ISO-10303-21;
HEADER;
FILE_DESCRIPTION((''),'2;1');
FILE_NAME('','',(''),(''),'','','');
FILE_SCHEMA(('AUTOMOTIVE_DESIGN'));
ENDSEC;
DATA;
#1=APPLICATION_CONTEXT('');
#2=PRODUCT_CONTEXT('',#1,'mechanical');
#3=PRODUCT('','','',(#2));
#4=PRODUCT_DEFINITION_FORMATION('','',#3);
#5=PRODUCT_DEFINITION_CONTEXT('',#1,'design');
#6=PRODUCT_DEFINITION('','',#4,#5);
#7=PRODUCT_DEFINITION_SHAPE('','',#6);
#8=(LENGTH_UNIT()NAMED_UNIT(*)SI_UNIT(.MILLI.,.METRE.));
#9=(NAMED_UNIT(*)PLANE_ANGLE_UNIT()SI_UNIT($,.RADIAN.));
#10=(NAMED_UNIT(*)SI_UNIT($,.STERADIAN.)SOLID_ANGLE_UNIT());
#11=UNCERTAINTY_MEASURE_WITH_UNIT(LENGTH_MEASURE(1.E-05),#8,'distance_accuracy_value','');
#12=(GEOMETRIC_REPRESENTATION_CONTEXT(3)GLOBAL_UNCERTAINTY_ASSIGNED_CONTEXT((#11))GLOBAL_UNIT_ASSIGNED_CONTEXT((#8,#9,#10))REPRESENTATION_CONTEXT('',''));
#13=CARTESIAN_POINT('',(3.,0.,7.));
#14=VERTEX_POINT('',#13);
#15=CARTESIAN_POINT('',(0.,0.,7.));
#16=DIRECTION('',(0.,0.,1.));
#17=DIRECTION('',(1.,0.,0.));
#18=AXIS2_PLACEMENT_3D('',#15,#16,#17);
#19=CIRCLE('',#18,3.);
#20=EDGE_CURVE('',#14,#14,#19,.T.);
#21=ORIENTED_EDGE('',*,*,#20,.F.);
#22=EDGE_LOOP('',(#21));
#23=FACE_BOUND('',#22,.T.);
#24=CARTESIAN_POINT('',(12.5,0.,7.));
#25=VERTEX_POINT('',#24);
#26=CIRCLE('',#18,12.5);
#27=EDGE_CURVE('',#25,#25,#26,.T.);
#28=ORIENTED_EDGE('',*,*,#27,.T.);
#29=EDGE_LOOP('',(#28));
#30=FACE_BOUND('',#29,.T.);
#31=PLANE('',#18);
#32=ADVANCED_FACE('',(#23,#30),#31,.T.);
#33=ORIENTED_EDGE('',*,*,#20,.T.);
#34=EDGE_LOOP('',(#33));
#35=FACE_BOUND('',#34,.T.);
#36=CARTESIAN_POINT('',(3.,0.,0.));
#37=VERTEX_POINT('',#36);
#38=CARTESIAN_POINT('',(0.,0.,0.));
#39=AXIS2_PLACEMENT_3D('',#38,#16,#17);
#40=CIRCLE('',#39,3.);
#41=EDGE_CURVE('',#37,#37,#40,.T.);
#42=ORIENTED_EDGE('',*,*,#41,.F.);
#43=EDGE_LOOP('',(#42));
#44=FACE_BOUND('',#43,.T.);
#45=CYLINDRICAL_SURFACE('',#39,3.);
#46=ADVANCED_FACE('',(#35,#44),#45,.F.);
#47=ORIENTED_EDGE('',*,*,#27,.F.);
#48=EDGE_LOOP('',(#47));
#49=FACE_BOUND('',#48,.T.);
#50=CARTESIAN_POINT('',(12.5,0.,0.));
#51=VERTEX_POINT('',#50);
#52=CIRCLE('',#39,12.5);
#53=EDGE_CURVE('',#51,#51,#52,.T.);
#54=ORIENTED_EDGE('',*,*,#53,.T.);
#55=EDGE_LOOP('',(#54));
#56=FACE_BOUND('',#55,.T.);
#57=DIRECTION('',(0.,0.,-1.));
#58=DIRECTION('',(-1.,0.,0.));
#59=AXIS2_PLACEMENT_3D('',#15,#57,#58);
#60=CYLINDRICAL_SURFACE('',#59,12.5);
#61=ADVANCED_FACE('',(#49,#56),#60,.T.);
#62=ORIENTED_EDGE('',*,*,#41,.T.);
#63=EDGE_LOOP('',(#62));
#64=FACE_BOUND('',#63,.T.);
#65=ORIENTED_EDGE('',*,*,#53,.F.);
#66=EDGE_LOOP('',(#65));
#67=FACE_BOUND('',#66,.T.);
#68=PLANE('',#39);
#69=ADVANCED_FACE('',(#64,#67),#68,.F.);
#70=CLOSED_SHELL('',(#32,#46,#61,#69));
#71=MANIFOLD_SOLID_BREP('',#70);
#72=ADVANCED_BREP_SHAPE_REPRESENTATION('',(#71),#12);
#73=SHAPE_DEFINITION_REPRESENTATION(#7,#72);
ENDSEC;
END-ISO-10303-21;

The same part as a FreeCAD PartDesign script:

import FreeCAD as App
import Part
import Sketcher

V = App.Vector
Q = App.Units.Quantity

doc = App.newDocument("Part")
body = doc.addObject("PartDesign::Body", "Body")

sketch1 = body.newObject("Sketcher::SketchObject", "Sketch")
sketch1.AttachmentSupport = (doc.getObject("XY_Plane"), [""])
sketch1.MapMode = "FlatFace"
sketch1.addGeometry(Part.Circle(V(0, 0, 0), V(0, 0, 1), 12), False)
sketch1.addConstraint([
    Sketcher.Constraint("Coincident", 0, 3, -1, 1),
    Sketcher.Constraint("Diameter", 0, Q("25 mm")),
])
pad1 = body.newObject("PartDesign::Pad", "Pad")
pad1.Profile = sketch1
pad1.Length = 7

sketch2 = body.newObject("Sketcher::SketchObject", "Sketch001")
sketch2.AttachmentSupport = (doc.getObject("XY_Plane"), [""])
sketch2.MapMode = "FlatFace"
sketch2.AttachmentOffset = App.Placement(V(0, 0, 7), App.Rotation())
sketch2.addGeometry(Part.Circle(V(0, 0, 0), V(0, 0, 1), 3), False)
sketch2.addConstraint([
    Sketcher.Constraint("Coincident", 0, 3, -1, 1),
    Sketcher.Constraint("Diameter", 0, Q("6 mm")),
])
pocket1 = body.newObject("PartDesign::Pocket", "Pocket")
pocket1.Profile = sketch2
pocket1.Length = 7

doc.recompute()
